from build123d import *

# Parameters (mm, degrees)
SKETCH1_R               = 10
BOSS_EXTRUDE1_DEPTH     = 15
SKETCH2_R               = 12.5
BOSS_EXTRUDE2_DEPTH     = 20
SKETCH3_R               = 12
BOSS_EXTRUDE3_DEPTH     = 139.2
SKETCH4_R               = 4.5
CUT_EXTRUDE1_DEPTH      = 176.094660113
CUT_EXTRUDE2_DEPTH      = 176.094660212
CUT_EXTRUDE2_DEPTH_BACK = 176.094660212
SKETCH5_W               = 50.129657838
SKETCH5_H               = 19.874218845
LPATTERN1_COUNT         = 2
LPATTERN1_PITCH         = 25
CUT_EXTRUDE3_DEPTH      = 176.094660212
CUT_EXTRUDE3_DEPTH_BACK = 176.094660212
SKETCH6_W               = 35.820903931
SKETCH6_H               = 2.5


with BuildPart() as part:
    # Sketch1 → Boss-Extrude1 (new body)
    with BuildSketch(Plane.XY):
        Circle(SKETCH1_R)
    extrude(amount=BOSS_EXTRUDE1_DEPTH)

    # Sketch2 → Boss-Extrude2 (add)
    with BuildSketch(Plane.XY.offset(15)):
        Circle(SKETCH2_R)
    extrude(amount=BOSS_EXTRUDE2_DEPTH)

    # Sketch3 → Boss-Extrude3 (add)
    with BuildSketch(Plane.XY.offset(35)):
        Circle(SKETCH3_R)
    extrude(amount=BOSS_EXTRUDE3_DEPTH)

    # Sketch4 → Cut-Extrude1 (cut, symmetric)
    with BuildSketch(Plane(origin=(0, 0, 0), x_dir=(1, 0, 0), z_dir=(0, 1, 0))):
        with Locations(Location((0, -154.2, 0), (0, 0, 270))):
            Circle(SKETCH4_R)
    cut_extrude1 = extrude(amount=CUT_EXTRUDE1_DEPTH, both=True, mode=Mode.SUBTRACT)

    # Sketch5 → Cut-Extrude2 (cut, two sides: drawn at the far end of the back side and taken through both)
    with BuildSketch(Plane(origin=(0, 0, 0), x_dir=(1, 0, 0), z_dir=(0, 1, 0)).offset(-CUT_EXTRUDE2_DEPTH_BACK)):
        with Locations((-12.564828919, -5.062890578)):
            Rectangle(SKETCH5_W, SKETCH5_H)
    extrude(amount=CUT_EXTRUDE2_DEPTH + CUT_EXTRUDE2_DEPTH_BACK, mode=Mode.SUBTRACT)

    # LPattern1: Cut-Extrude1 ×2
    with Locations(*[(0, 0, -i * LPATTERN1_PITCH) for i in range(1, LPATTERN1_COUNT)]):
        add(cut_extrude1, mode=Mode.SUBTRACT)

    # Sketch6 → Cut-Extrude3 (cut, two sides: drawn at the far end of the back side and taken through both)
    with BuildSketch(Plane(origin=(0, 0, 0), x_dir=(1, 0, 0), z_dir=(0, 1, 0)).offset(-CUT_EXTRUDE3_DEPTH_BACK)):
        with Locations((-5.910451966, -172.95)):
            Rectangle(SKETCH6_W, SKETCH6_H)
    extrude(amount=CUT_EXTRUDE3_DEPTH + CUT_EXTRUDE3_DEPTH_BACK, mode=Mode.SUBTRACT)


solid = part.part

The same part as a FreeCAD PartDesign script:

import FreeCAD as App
import Part
import Sketcher

V = App.Vector
Q = App.Units.Quantity

doc = App.newDocument("Part")
body = doc.addObject("PartDesign::Body", "Body")

sketch1 = body.newObject("Sketcher::SketchObject", "Sketch")
sketch1.AttachmentSupport = (doc.getObject("XY_Plane"), [""])
sketch1.MapMode = "FlatFace"
sketch1.addGeometry(Part.Circle(V(0, 0, 0), V(0, 0, 1), 10), False)
sketch1.addConstraint([
    Sketcher.Constraint("Coincident", 0, 3, -1, 1),
    Sketcher.Constraint("Diameter", 0, Q("20 mm")),
])
pad1 = body.newObject("PartDesign::Pad", "Pad")
pad1.Profile = sketch1
pad1.Length = 15

sketch2 = body.newObject("Sketcher::SketchObject", "Sketch001")
sketch2.AttachmentSupport = (doc.getObject("XY_Plane"), [""])
sketch2.MapMode = "FlatFace"
sketch2.AttachmentOffset = App.Placement(V(0, 0, 15), App.Rotation())
sketch2.addGeometry(Part.Circle(V(0, 0, 0), V(0, 0, 1), 12), False)
sketch2.addConstraint([
    Sketcher.Constraint("Coincident", 0, 3, -1, 1),
    Sketcher.Constraint("Diameter", 0, Q("25 mm")),
])
pad2 = body.newObject("PartDesign::Pad", "Pad001")
pad2.Profile = sketch2
pad2.Length = 20

sketch3 = body.newObject("Sketcher::SketchObject", "Sketch002")
sketch3.AttachmentSupport = (doc.getObject("XY_Plane"), [""])
sketch3.MapMode = "FlatFace"
sketch3.AttachmentOffset = App.Placement(V(0, 0, 35), App.Rotation())
sketch3.addGeometry(Part.Circle(V(0, 0, 0), V(0, 0, 1), 12), False)
sketch3.addConstraint([
    Sketcher.Constraint("Coincident", 0, 3, -1, 1),
    Sketcher.Constraint("Diameter", 0, Q("24 mm")),
])
pad3 = body.newObject("PartDesign::Pad", "Pad002")
pad3.Profile = sketch3
pad3.Length = 139.2

sketch4 = body.newObject("Sketcher::SketchObject", "Sketch003")
sketch4.AttachmentSupport = (doc.getObject("XZ_Plane"), [""])
sketch4.MapMode = "FlatFace"
sketch4.addGeometry(Part.Circle(V(0, 154.2, 0), V(0, 0, 1), 4.5), False)
sketch4.addConstraint([
    Sketcher.Constraint("PointOnObject", 0, 3, -2),
    Sketcher.Constraint("Diameter", 0, Q("9 mm")),
    Sketcher.Constraint("DistanceY", -1, 1, 0, 3, Q("154.2 mm")),
])
pocket1 = body.newObject("PartDesign::Pocket", "Pocket")
pocket1.Profile = sketch4
pocket1.Length = 352.18932
pocket1.Midplane = True

sketch5 = body.newObject("Sketcher::SketchObject", "Sketch004")
sketch5.AttachmentSupport = (doc.getObject("XZ_Plane"), [""])
sketch5.MapMode = "FlatFace"
sketch5.addGeometry([
    Part.LineSegment(V(-38, -5, 0), V(-38, 15, 0)),
    Part.LineSegment(V(-38, 15, 0), V(12, 15, 0)),
    Part.LineSegment(V(12, 15, 0), V(12, -5, 0)),
    Part.LineSegment(V(12, -5, 0), V(-38, -5, 0)),
], False)
sketch5.addConstraint([
    Sketcher.Constraint("Coincident", 0, 2, 1, 1),
    Sketcher.Constraint("Coincident", 1, 2, 2, 1),
    Sketcher.Constraint("Coincident", 2, 2, 3, 1),
    Sketcher.Constraint("Coincident", 3, 2, 0, 1),
    Sketcher.Constraint("Vertical", 0),
    Sketcher.Constraint("Horizontal", 1),
    Sketcher.Constraint("Vertical", 2),
    Sketcher.Constraint("Horizontal", 3),
    Sketcher.Constraint("DistanceY", -1, 1, 0, 2, Q("15 mm")),
    Sketcher.Constraint("DistanceX", -1, 1, 1, 2, Q("12.5 mm")),
    Sketcher.Constraint("DistanceY", 0, 1, 0, 2, Q("19.874219 mm")),
    Sketcher.Constraint("DistanceX", 1, 1, 1, 2, Q("50.129658 mm")),
])
pocket2 = body.newObject("PartDesign::Pocket", "Pocket001")
pocket2.Profile = sketch5
pocket2.Type = "ThroughAll"
pocket2.Midplane = True
doc.recompute()

linearpattern = body.newObject("PartDesign::LinearPattern", "LinearPattern")
linearpattern.Originals = [pocket1]
linearpattern.Direction = (doc.getObject("Z_Axis"), [""])
linearpattern.Mode = "offset"
linearpattern.Offset = 25
linearpattern.Occurrences = 2
linearpattern.Reversed = True
body.Tip = linearpattern

sketch6 = body.newObject("Sketcher::SketchObject", "Sketch005")
sketch6.AttachmentSupport = (doc.getObject("XZ_Plane"), [""])
sketch6.MapMode = "FlatFace"
sketch6.addGeometry([
    Part.LineSegment(V(-23.8, 171.7, 0), V(-23.8, 174.2, 0)),
    Part.LineSegment(V(-23.8, 174.2, 0), V(12, 174.2, 0)),
    Part.LineSegment(V(12, 174.2, 0), V(12, 171.7, 0)),
    Part.LineSegment(V(12, 171.7, 0), V(-23.8, 171.7, 0)),
], False)
sketch6.addConstraint([
    Sketcher.Constraint("Coincident", 0, 2, 1, 1),
    Sketcher.Constraint("Coincident", 1, 2, 2, 1),
    Sketcher.Constraint("Coincident", 2, 2, 3, 1),
    Sketcher.Constraint("Coincident", 3, 2, 0, 1),
    Sketcher.Constraint("Vertical", 0),
    Sketcher.Constraint("Horizontal", 1),
    Sketcher.Constraint("Vertical", 2),
    Sketcher.Constraint("Horizontal", 3),
    Sketcher.Constraint("DistanceY", 0, 1, 0, 2, Q("2.5 mm")),
    Sketcher.Constraint("DistanceX", -1, 1, 1, 2, Q("12 mm")),
    Sketcher.Constraint("DistanceY", -1, 1, 0, 2, Q("174.2 mm")),
    Sketcher.Constraint("DistanceX", 1, 1, 1, 2, Q("35.820904 mm")),
])
pocket3 = body.newObject("PartDesign::Pocket", "Pocket002")
pocket3.Profile = sketch6
pocket3.Type = "ThroughAll"
pocket3.Midplane = True

doc.recompute()
